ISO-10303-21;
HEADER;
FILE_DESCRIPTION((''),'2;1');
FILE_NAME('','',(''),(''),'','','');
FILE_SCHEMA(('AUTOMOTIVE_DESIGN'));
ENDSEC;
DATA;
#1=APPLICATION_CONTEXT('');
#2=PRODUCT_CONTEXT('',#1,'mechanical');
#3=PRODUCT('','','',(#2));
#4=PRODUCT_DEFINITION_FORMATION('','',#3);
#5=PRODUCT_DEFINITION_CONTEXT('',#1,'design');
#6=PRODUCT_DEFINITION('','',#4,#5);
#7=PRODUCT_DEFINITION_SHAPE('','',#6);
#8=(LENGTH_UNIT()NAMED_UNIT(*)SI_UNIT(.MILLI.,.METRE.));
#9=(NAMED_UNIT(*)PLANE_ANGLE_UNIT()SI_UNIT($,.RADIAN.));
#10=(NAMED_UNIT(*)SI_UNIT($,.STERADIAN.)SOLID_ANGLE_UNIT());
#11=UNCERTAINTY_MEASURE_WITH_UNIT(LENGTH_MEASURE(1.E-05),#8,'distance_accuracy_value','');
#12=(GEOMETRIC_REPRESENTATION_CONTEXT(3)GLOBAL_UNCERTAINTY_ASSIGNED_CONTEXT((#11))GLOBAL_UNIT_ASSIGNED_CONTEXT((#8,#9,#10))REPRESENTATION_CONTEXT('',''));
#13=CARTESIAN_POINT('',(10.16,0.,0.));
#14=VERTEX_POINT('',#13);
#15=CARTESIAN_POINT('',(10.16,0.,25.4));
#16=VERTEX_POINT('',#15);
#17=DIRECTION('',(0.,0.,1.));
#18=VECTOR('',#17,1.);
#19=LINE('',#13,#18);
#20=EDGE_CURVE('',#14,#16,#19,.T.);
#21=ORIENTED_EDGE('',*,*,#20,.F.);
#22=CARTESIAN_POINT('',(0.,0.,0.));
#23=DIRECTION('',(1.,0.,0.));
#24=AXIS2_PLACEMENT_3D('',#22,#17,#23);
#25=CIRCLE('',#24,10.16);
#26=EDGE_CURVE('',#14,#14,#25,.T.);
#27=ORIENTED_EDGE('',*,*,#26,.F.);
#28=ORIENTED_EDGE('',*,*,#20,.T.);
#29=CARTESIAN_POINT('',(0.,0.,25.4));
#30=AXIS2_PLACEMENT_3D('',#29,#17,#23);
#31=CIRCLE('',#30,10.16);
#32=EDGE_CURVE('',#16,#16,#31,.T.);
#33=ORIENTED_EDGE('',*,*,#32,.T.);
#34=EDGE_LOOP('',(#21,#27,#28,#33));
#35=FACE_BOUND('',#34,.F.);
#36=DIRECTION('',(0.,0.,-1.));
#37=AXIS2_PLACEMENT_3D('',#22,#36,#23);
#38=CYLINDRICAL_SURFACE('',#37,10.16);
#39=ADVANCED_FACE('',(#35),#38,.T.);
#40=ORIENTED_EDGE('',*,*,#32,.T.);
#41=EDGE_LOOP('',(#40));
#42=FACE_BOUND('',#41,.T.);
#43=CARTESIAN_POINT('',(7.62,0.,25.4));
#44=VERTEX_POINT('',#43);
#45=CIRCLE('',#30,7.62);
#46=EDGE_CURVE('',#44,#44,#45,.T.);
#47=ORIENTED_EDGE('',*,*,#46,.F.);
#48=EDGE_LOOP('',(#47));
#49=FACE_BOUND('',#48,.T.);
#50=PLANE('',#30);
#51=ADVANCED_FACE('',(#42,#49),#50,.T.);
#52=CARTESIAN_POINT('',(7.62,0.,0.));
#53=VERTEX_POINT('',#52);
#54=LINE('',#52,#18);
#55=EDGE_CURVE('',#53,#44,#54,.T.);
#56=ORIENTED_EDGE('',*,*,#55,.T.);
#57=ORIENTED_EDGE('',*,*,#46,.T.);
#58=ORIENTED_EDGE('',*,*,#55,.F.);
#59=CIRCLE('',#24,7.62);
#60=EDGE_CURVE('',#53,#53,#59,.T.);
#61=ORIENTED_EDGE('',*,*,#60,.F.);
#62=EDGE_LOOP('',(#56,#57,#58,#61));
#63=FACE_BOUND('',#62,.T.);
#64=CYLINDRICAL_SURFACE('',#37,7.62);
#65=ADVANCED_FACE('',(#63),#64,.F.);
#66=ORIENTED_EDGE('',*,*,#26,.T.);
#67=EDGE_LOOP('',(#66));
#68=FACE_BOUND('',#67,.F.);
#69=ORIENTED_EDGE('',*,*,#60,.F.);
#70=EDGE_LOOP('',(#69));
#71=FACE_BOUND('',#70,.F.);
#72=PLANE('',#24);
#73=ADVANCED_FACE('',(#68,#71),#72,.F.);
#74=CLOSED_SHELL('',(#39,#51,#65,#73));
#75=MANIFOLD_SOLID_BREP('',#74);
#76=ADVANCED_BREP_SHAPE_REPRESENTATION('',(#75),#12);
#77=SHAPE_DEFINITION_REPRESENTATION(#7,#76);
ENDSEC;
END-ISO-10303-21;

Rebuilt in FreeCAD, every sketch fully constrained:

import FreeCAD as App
import Part
import Sketcher
Q = App.Units.Quantity

doc = App.newDocument("Part")
params = doc.addObject("Spreadsheet::Sheet", "Params")
for row, (alias, value) in enumerate([
    ("sketch1_diameter", "0.6 in"),
    ("sketch1_diameter2", "0.8 in"),
    ("pad1_length", "1 in"),
], start=1):
    params.set(f"A{row}", alias)
    params.set(f"B{row}", "=" + value)
    params.setAlias(f"B{row}", alias)

body = doc.addObject("PartDesign::Body", "Body")

# Sketch on XY plane
sketch1 = body.newObject("Sketcher::SketchObject", "Sketch")
sketch1.AttachmentSupport = (doc.getObject("XY_Plane"), [""])
sketch1.MapMode = "FlatFace"
sketch1.addGeometry(Part.Circle(App.Vector(0, 0, 0), App.Vector(0, 0, 1), 10), False)
sketch1.addGeometry(Part.Circle(App.Vector(0, 0, 0), App.Vector(0, 0, 1), 8), False)
sketch1.addConstraint(Sketcher.Constraint("Coincident", 0, 3, -1, 1))
sketch1.addConstraint(Sketcher.Constraint("Coincident", 1, 3, -1, 1))
sketch1.addConstraint(Sketcher.Constraint("Diameter", 1, Q("0.6 in")))
sketch1.addConstraint(Sketcher.Constraint("Diameter", 0, Q("0.8 in")))
sketch1.setExpression("Constraints[2]", "Params.sketch1_diameter")
sketch1.setExpression("Constraints[3]", "Params.sketch1_diameter2")
pad1 = body.newObject("PartDesign::Pad", "Pad")
pad1.Profile = sketch1
pad1.setExpression("Length", "Params.pad1_length")

doc.recompute()
